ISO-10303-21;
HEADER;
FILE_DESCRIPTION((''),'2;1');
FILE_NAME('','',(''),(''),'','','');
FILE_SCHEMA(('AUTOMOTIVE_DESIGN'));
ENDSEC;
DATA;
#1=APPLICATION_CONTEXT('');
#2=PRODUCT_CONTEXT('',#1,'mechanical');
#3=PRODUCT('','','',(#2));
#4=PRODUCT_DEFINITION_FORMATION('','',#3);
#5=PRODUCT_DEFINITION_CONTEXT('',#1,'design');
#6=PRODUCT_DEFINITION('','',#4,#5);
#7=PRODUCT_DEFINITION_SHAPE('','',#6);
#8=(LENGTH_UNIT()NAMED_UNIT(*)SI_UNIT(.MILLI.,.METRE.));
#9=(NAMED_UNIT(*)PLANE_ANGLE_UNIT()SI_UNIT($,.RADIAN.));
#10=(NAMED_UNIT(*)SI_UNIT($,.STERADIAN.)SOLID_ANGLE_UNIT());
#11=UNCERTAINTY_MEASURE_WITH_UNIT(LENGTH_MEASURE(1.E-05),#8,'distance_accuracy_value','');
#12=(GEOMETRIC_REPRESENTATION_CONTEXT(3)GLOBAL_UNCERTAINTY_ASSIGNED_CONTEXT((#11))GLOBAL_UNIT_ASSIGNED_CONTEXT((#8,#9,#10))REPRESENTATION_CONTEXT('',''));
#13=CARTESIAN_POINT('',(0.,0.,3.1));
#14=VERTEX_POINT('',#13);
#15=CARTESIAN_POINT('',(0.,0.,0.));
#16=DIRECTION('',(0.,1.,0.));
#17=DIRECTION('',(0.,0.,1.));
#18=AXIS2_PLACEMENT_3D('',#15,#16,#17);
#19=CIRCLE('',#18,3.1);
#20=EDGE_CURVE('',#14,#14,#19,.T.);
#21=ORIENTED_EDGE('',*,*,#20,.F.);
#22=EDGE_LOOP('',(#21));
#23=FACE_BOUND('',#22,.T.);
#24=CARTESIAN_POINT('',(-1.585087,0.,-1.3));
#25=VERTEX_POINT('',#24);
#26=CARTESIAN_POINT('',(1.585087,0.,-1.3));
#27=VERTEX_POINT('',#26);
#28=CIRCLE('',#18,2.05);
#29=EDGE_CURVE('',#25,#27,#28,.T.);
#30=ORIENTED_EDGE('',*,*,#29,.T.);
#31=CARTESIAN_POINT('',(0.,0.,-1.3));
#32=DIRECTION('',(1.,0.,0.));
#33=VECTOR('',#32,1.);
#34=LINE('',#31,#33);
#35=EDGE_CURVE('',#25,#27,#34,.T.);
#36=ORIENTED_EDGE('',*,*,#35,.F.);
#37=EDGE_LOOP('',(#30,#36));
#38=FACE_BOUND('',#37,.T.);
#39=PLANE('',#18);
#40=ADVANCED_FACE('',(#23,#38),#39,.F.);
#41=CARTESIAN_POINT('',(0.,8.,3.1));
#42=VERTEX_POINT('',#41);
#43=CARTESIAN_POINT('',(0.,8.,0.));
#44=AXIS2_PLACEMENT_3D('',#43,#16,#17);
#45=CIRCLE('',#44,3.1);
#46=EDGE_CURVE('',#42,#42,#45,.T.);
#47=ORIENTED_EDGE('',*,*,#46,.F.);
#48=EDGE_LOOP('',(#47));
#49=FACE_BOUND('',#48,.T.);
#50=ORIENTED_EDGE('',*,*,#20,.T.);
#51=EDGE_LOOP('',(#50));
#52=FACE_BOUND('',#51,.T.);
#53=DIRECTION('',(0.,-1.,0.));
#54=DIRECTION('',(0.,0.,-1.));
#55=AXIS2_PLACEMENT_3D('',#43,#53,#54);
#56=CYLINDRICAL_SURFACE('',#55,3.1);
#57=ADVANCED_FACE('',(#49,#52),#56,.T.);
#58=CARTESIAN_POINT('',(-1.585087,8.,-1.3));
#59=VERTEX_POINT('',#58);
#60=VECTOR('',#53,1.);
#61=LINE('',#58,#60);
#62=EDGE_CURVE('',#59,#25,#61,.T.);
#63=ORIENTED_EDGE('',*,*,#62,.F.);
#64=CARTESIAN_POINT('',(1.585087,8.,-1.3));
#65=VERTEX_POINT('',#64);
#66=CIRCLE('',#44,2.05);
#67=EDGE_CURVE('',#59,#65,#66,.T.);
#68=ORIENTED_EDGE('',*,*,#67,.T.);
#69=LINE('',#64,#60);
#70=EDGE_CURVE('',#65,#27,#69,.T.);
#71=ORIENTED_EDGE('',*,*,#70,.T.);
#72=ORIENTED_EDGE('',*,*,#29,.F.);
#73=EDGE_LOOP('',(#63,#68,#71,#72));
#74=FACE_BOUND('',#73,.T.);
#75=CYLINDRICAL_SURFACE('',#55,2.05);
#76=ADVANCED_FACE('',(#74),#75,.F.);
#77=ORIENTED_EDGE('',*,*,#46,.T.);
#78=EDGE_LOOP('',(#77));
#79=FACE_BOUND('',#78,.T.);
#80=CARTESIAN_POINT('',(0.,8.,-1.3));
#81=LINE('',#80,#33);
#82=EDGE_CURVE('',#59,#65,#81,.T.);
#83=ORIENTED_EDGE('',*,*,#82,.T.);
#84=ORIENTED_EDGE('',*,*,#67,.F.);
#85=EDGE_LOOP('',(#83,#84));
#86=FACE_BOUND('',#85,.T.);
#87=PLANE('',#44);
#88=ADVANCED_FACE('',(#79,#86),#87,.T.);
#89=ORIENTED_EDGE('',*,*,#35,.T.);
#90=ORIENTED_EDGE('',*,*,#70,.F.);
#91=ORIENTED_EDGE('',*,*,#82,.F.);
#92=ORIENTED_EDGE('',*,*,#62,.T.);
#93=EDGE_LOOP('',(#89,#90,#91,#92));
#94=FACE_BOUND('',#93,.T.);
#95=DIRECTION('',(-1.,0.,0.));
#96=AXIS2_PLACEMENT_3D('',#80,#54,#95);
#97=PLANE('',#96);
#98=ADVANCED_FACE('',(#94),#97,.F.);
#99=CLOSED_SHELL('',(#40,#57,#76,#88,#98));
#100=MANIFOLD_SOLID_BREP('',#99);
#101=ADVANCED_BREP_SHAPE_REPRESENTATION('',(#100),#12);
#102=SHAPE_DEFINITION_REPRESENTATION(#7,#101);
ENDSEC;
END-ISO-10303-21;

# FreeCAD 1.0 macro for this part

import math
import FreeCAD as App
import Part
import Sketcher

V = App.Vector

doc = App.newDocument("Part")
body = doc.addObject("PartDesign::Body", "Body")

# Sketch on XZ plane
sketch1 = body.newObject("Sketcher::SketchObject", "Sketch")
sketch1.AttachmentSupport = (doc.getObject("XZ_Plane"), [""])
sketch1.MapMode = "FlatFace"
sketch1.addGeometry(Part.Circle(V(0, 0, 0), V(0, 0, 1), 3.1), False)
sketch1.addGeometry(Part.ArcOfCircle(Part.Circle(V(0, 0, 0), V(0, 0, 1), 2), math.radians(-39), math.radians(219)), False)
sketch1.addGeometry(Part.LineSegment(V(-1.6, -1.3, 0), V(1.6, -1.3, 0)), False)
sketch1.addConstraint(Sketcher.Constraint("Coincident", 1, 1, 2, 2))
sketch1.addConstraint(Sketcher.Constraint("Coincident", 2, 1, 1, 2))
sketch1.addConstraint(Sketcher.Constraint("Horizontal", 2))
sketch1.addConstraint(Sketcher.Constraint("Coincident", 0, 3, -1, 1))
sketch1.addConstraint(Sketcher.Constraint("Coincident", 1, 3, -1, 1))
sketch1.addConstraint(Sketcher.Constraint("Diameter", 0, 6.2))
sketch1.addConstraint(Sketcher.Constraint("Radius", 1, 2.05))
sketch1.addConstraint(Sketcher.Constraint("DistanceY", 1, 1, -1, 1, 1.3))
pad1 = body.newObject("PartDesign::Pad", "Pad")
pad1.Profile = sketch1
pad1.Length = 8
pad1.Reversed = True

doc.recompute()
